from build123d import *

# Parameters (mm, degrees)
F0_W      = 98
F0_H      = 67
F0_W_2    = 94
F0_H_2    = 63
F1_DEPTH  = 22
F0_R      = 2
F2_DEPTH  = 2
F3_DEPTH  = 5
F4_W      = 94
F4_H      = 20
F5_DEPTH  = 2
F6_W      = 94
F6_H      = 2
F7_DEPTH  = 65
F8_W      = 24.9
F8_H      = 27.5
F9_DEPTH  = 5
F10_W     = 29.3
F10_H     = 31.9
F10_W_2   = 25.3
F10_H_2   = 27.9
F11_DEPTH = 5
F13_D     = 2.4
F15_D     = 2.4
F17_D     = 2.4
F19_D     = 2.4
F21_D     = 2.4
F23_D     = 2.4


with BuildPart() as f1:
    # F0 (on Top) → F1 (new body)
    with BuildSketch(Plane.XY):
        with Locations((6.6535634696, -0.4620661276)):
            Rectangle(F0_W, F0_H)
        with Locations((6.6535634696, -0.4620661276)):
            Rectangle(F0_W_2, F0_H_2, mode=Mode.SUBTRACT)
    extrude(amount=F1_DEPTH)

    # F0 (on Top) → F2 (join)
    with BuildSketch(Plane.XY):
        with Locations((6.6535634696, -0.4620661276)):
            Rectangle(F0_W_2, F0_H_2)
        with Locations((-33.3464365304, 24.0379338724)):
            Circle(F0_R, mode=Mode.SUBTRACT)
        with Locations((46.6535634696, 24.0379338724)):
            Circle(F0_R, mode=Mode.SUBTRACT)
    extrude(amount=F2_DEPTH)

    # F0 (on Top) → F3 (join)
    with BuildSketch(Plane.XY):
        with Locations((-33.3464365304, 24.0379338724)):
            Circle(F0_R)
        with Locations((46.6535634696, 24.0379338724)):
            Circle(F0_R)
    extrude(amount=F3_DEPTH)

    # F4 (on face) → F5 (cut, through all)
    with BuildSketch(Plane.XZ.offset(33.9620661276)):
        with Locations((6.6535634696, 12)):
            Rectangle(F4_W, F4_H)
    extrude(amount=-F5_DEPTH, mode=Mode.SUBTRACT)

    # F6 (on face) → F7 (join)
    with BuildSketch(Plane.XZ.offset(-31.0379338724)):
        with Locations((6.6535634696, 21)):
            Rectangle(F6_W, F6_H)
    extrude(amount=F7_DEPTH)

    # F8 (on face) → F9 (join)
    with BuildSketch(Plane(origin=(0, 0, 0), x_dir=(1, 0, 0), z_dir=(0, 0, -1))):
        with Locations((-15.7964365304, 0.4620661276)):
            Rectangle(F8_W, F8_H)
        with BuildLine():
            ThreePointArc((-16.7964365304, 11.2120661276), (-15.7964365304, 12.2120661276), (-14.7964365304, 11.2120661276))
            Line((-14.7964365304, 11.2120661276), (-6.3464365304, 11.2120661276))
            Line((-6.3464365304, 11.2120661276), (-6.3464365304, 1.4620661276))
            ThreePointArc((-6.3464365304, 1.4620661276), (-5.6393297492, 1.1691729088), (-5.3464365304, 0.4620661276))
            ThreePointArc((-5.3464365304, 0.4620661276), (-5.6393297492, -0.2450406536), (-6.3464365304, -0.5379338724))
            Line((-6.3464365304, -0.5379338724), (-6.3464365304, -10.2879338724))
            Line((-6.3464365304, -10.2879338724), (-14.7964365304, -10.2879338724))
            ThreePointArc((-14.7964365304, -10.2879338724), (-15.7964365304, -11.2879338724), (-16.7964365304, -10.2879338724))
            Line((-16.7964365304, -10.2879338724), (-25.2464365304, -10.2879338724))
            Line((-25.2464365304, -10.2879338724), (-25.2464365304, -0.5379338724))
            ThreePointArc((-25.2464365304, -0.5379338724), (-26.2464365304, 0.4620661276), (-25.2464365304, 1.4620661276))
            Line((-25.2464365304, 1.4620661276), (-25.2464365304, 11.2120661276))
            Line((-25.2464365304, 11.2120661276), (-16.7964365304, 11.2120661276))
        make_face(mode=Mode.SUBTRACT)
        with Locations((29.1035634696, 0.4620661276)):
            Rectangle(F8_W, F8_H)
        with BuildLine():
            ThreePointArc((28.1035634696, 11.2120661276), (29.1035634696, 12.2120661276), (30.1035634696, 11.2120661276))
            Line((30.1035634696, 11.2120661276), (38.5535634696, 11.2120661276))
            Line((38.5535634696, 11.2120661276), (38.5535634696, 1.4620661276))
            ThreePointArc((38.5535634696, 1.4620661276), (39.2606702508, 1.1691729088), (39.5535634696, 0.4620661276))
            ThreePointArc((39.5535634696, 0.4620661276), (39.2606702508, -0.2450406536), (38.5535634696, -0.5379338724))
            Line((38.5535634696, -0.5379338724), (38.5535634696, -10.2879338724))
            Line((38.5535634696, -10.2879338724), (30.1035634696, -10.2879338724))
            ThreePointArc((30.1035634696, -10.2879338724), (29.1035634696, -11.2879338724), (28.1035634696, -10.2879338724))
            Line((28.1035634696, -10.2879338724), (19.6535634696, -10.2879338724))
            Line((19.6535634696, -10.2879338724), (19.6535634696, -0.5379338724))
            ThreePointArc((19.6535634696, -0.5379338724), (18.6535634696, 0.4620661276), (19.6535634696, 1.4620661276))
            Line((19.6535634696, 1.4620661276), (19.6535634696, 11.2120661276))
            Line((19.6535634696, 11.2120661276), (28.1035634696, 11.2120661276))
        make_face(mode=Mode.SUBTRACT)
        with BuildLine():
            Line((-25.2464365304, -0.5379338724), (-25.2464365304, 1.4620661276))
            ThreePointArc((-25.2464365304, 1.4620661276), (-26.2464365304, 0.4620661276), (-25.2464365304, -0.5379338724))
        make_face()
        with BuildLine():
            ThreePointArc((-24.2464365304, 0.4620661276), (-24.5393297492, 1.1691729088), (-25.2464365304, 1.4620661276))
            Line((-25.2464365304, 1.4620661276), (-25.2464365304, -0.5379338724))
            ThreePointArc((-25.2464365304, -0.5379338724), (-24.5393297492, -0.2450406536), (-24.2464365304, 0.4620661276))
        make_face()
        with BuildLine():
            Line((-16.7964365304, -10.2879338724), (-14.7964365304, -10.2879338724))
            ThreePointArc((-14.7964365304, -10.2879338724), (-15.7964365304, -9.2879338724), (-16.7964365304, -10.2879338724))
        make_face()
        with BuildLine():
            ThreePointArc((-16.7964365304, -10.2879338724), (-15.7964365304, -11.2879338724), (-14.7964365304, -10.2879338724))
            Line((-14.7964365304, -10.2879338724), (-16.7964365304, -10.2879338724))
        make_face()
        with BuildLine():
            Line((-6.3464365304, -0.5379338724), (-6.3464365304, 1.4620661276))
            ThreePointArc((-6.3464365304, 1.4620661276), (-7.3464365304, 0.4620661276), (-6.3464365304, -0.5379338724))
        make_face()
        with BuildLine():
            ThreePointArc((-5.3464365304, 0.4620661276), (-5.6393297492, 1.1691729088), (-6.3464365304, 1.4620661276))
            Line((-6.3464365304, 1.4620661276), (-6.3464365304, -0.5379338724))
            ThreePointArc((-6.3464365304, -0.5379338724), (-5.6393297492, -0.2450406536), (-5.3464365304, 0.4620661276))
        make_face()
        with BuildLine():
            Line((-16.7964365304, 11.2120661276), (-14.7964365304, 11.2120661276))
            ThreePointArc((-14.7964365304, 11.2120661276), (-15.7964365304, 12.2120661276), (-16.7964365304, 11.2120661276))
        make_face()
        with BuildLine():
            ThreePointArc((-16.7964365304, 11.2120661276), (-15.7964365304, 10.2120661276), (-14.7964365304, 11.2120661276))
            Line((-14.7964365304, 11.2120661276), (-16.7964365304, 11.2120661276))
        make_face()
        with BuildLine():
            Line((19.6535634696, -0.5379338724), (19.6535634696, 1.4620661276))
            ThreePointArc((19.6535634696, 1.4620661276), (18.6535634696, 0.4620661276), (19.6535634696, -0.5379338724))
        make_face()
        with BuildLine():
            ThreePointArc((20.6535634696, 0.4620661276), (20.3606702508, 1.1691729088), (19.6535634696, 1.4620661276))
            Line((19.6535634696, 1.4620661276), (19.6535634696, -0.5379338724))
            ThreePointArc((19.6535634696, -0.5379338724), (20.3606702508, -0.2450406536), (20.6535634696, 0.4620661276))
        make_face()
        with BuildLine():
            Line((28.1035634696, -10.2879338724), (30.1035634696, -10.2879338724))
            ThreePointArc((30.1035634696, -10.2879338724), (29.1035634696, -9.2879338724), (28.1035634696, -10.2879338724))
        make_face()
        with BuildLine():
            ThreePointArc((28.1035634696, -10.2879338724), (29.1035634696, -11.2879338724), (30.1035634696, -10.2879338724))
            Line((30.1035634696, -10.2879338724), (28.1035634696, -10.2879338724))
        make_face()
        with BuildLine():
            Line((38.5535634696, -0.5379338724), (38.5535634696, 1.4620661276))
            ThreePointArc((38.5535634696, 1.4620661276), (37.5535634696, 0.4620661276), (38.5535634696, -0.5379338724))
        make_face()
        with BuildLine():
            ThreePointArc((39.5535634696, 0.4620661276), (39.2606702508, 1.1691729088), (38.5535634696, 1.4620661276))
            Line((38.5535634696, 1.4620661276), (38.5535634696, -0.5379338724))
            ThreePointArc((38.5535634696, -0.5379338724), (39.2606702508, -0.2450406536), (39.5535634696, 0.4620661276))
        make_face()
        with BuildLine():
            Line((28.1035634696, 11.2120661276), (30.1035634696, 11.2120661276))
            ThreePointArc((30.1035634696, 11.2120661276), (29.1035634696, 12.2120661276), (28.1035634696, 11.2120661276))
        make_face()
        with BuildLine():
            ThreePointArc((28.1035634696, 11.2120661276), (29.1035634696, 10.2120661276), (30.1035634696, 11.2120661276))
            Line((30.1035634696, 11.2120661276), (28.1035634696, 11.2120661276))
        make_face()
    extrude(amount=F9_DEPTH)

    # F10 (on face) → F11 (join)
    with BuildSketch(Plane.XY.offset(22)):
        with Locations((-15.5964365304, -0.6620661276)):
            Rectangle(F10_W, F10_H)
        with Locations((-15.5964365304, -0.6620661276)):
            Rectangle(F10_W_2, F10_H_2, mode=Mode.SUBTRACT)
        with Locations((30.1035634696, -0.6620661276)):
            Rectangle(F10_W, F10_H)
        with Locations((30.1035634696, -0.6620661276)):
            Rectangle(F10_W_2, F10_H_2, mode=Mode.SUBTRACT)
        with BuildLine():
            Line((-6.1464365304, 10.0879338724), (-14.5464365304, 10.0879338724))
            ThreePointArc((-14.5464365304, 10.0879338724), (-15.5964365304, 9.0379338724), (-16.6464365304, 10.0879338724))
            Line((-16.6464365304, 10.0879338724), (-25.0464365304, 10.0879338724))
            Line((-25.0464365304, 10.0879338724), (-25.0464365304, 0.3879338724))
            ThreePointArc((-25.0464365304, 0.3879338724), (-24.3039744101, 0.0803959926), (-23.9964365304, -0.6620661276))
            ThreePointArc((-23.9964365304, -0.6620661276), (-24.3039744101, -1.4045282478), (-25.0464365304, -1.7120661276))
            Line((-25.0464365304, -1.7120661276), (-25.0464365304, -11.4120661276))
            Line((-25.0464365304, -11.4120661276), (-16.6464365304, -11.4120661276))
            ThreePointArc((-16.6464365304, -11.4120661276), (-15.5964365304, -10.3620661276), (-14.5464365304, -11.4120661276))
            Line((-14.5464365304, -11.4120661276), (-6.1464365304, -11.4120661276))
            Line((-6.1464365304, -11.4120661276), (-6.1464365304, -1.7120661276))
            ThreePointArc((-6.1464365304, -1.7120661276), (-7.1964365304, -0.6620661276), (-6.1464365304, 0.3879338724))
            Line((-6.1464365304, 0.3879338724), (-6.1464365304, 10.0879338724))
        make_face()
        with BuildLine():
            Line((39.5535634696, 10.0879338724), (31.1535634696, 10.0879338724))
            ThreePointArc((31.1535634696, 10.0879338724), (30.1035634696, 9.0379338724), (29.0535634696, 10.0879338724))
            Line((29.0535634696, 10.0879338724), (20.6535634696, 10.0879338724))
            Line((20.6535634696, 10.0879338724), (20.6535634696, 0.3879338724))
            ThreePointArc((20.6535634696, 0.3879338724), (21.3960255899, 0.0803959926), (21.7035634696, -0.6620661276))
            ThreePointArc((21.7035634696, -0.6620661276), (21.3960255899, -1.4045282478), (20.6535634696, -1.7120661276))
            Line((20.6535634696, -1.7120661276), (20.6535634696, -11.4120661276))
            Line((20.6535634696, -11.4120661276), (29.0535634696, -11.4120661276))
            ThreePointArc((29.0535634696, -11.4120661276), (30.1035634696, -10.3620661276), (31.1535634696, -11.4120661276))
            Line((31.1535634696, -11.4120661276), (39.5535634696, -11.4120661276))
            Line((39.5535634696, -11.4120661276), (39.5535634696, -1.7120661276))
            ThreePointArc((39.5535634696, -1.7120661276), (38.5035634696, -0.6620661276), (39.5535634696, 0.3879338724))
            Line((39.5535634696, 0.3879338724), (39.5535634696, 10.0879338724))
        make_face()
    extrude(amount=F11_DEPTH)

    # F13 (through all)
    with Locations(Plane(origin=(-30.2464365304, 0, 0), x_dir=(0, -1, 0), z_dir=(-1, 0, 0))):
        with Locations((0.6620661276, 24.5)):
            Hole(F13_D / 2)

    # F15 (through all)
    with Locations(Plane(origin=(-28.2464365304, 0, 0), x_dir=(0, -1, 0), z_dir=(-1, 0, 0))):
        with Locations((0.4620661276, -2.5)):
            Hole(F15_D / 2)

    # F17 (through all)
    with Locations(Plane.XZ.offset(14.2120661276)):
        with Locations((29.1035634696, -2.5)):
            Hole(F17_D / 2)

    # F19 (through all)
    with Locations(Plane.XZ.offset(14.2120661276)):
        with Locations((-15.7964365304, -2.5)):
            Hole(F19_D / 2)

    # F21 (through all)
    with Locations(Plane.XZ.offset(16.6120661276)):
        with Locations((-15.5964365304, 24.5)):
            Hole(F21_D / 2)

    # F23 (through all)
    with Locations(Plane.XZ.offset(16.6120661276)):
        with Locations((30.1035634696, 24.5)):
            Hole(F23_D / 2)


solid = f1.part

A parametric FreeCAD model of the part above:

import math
import FreeCAD as App
import Part
import Sketcher
from FreeCAD import Vector
Q = App.Units.Quantity

doc = App.newDocument("Part")
body = doc.addObject("PartDesign::Body", "Body")

# Sketch on XY plane
sketch1 = body.newObject("Sketcher::SketchObject", "Sketch")
sketch1.AttachmentSupport = (doc.getObject("XY_Plane"), [""])
sketch1.MapMode = "FlatFace"
sketch1.addGeometry([
    Part.LineSegment(Vector(-42, 33, 0), Vector(-42, -34, 0)),  # 0
    Part.LineSegment(Vector(-42, -34, 0), Vector(56, -34, 0)),  # 1
    Part.LineSegment(Vector(56, -34, 0), Vector(56, 33, 0)),  # 2
    Part.LineSegment(Vector(56, 33, 0), Vector(-42, 33, 0)),  # 3
    Part.LineSegment(Vector(54, -32, 0), Vector(-40, -32, 0)),  # 4
    Part.LineSegment(Vector(-40, -32, 0), Vector(-40, 31, 0)),  # 5
    Part.LineSegment(Vector(-40, 31, 0), Vector(54, 31, 0)),  # 6
    Part.LineSegment(Vector(54, 31, 0), Vector(54, -32, 0)),  # 7
], False)
sketch1.addConstraint([
    Sketcher.Constraint("Coincident", 0, 2, 1, 1),
    Sketcher.Constraint("Coincident", 1, 2, 2, 1),
    Sketcher.Constraint("Coincident", 2, 2, 3, 1),
    Sketcher.Constraint("Coincident", 3, 2, 0, 1),
    Sketcher.Constraint("Coincident", 4, 2, 5, 1),
    Sketcher.Constraint("Coincident", 5, 2, 6, 1),
    Sketcher.Constraint("Coincident", 6, 2, 7, 1),
    Sketcher.Constraint("Coincident", 7, 2, 4, 1),
    Sketcher.Constraint("Vertical", 0),
    Sketcher.Constraint("Horizontal", 1),
    Sketcher.Constraint("Vertical", 2),
    Sketcher.Constraint("Horizontal", 3),
    Sketcher.Constraint("Horizontal", 4),
    Sketcher.Constraint("Vertical", 5),
    Sketcher.Constraint("Horizontal", 6),
    Sketcher.Constraint("Vertical", 7),
    Sketcher.Constraint("DistanceX", 1, 1, 1, 2, Q("98 mm")),
    Sketcher.Constraint("DistanceX", 4, 2, 4, 1, Q("94 mm")),
    Sketcher.Constraint("DistanceY", 0, 2, 0, 1, Q("67 mm")),
    Sketcher.Constraint("DistanceY", 5, 1, 5, 2, Q("63 mm")),
    Sketcher.Constraint("DistanceX", 0, 2, 4, 2, Q("2 mm")),
    Sketcher.Constraint("DistanceY", 0, 2, 4, 2, Q("2 mm")),
    Sketcher.Constraint("DistanceX", 0, 2, -1, 1, Q("42.346437 mm")),
    Sketcher.Constraint("DistanceY", 0, 2, -1, 1, Q("33.962066 mm")),
])
pad1 = body.newObject("PartDesign::Pad", "Pad")
pad1.Profile = sketch1
pad1.Length = 22

# Sketch on XY plane
sketch2 = body.newObject("Sketcher::SketchObject", "Sketch001")
sketch2.AttachmentSupport = (doc.getObject("XY_Plane"), [""])
sketch2.MapMode = "FlatFace"
sketch2.addGeometry([
    Part.LineSegment(Vector(-40.3, 31, 0), Vector(-40.3, -32, 0)),  # 0
    Part.LineSegment(Vector(-40.3, -32, 0), Vector(53.7, -32, 0)),  # 1
    Part.LineSegment(Vector(53.7, -32, 0), Vector(53.7, 31, 0)),  # 2
    Part.LineSegment(Vector(53.7, 31, 0), Vector(-40.3, 31, 0)),  # 3
    Part.Circle(Vector(-33.3, 24, 0), Vector(0, 0, 1), 2),  # 4
    Part.Circle(Vector(46.7, 24, 0), Vector(0, 0, 1), 2),  # 5
], False)
sketch2.addConstraint([
    Sketcher.Constraint("Coincident", 0, 2, 1, 1),
    Sketcher.Constraint("Coincident", 1, 2, 2, 1),
    Sketcher.Constraint("Coincident", 2, 2, 3, 1),
    Sketcher.Constraint("Coincident", 3, 2, 0, 1),
    Sketcher.Constraint("Vertical", 0),
    Sketcher.Constraint("Horizontal", 1),
    Sketcher.Constraint("Vertical", 2),
    Sketcher.Constraint("Horizontal", 3),
    Sketcher.Constraint("Equal", 4, 5),
    Sketcher.Constraint("Horizontal", 4, 3, 5, 3),
    Sketcher.Constraint("Diameter", 4, Q("4 mm")),
    Sketcher.Constraint("DistanceX", 1, 1, 1, 2, Q("94 mm")),
    Sketcher.Constraint("DistanceY", 0, 2, 0, 1, Q("63 mm")),
    Sketcher.Constraint("DistanceX", 4, 3, 5, 3, Q("80 mm")),
    Sketcher.Constraint("DistanceX", 0, 2, 4, 3, Q("7 mm")),
    Sketcher.Constraint("DistanceY", 0, 2, 4, 3, Q("56 mm")),
    Sketcher.Constraint("DistanceX", 4, 3, -1, 1, Q("33.346437 mm")),
    Sketcher.Constraint("DistanceY", -1, 1, 4, 3, Q("24.037934 mm")),
])
pad2 = body.newObject("PartDesign::Pad", "Pad001")
pad2.Profile = sketch2
pad2.Length = 2

# Sketch on XY plane
sketch3 = body.newObject("Sketcher::SketchObject", "Sketch002")
sketch3.AttachmentSupport = (doc.getObject("XY_Plane"), [""])
sketch3.MapMode = "FlatFace"
sketch3.addGeometry([
    Part.Circle(Vector(-33.3, 24, 0), Vector(0, 0, 1), 2),
    Part.Circle(Vector(46.7, 24, 0), Vector(0, 0, 1), 2),
], False)
sketch3.addConstraint([
    Sketcher.Constraint("Equal", 0, 1),
    Sketcher.Constraint("Horizontal", 0, 3, 1, 3),
    Sketcher.Constraint("Diameter", 0, Q("4 mm")),
    Sketcher.Constraint("DistanceX", 0, 3, 1, 3, Q("80 mm")),
    Sketcher.Constraint("DistanceX", 0, 3, -1, 1, Q("33.346437 mm")),
    Sketcher.Constraint("DistanceY", -1, 1, 0, 3, Q("24.037934 mm")),
])
pad3 = body.newObject("PartDesign::Pad", "Pad002")
pad3.Profile = sketch3
pad3.Length = 5

# Sketch on XZ plane
sketch4 = body.newObject("Sketcher::SketchObject", "Sketch003")
sketch4.AttachmentSupport = (doc.getObject("XZ_Plane"), [""])
sketch4.MapMode = "FlatFace"
sketch4.AttachmentOffset = App.Placement(Vector(0, 0, 33.962066), App.Rotation())
sketch4.addGeometry([
    Part.LineSegment(Vector(-40, 22, 0), Vector(-40, 2, 0)),
    Part.LineSegment(Vector(-40, 2, 0), Vector(54, 2, 0)),
    Part.LineSegment(Vector(54, 2, 0), Vector(54, 22, 0)),
    Part.LineSegment(Vector(54, 22, 0), Vector(-40, 22, 0)),
], False)
sketch4.addConstraint([
    Sketcher.Constraint("Coincident", 0, 2, 1, 1),
    Sketcher.Constraint("Coincident", 1, 2, 2, 1),
    Sketcher.Constraint("Coincident", 2, 2, 3, 1),
    Sketcher.Constraint("Coincident", 3, 2, 0, 1),
    Sketcher.Constraint("Vertical", 0),
    Sketcher.Constraint("Horizontal", 1),
    Sketcher.Constraint("Vertical", 2),
    Sketcher.Constraint("Horizontal", 3),
    Sketcher.Constraint("DistanceX", 1, 1, 1, 2, Q("94 mm")),
    Sketcher.Constraint("DistanceY", 0, 2, 0, 1, Q("20 mm")),
    Sketcher.Constraint("DistanceY", -1, 1, 0, 2, Q("2 mm")),
    Sketcher.Constraint("DistanceX", 0, 2, -1, 1, Q("40.346437 mm")),
])
pocket1 = body.newObject("PartDesign::Pocket", "Pocket")
pocket1.Profile = sketch4
pocket1.Length = 2

# Sketch on XZ plane
sketch5 = body.newObject("Sketcher::SketchObject", "Sketch004")
sketch5.AttachmentSupport = (doc.getObject("XZ_Plane"), [""])
sketch5.MapMode = "FlatFace"
sketch5.AttachmentOffset = App.Placement(Vector(0, 0, -31.037934), App.Rotation())
sketch5.addGeometry([
    Part.LineSegment(Vector(-40.3, 22, 0), Vector(-40.3, 20, 0)),
    Part.LineSegment(Vector(-40.3, 20, 0), Vector(53.7, 20, 0)),
    Part.LineSegment(Vector(53.7, 20, 0), Vector(53.7, 22, 0)),
    Part.LineSegment(Vector(53.7, 22, 0), Vector(-40.3, 22, 0)),
], False)
sketch5.addConstraint([
    Sketcher.Constraint("Coincident", 0, 2, 1, 1),
    Sketcher.Constraint("Coincident", 1, 2, 2, 1),
    Sketcher.Constraint("Coincident", 2, 2, 3, 1),
    Sketcher.Constraint("Coincident", 3, 2, 0, 1),
    Sketcher.Constraint("Vertical", 0),
    Sketcher.Constraint("Horizontal", 1),
    Sketcher.Constraint("Vertical", 2),
    Sketcher.Constraint("Horizontal", 3),
    Sketcher.Constraint("DistanceX", 1, 1, 1, 2, Q("94 mm")),
    Sketcher.Constraint("DistanceY", 0, 2, 0, 1, Q("2 mm")),
    Sketcher.Constraint("DistanceY", -1, 1, 0, 2, Q("20 mm")),
    Sketcher.Constraint("DistanceX", 0, 2, -1, 1, Q("40.346437 mm")),
])
pad4 = body.newObject("PartDesign::Pad", "Pad003")
pad4.Profile = sketch5
pad4.Length = 65

# Sketch on XY plane
sketch6 = body.newObject("Sketcher::SketchObject", "Sketch005")
sketch6.AttachmentSupport = (doc.getObject("XY_Plane"), [""])
sketch6.MapMode = "FlatFace"
sketch6.addGeometry([
    Part.LineSegment(Vector(-28.2, -14.2, 0), Vector(-28.2, 13.3, 0)),  # 0
    Part.LineSegment(Vector(-28.2, 13.3, 0), Vector(-3.3, 13.3, 0)),  # 1
    Part.LineSegment(Vector(-3.3, 13.3, 0), Vector(-3.3, -14.2, 0)),  # 2
    Part.LineSegment(Vector(-3.3, -14.2, 0), Vector(-28.2, -14.2, 0)),  # 3
    Part.LineSegment(Vector(-25.2, -11.2, 0), Vector(-16.8, -11.2, 0)),  # 4
    Part.ArcOfCircle(Part.Circle(Vector(-15.8, -11.2, 0), Vector(0, 0, 1), 1), math.radians(0), math.radians(180)),  # 5
    Part.LineSegment(Vector(-14.8, -11.2, 0), Vector(-6.3, -11.2, 0)),  # 6
    Part.LineSegment(Vector(-6.3, -11.2, 0), Vector(-6.3, -1.5, 0)),  # 7
    Part.ArcOfCircle(Part.Circle(Vector(-6.3, -0.5, 0), Vector(0, 0, 1), 1), math.radians(90), math.radians(270)),  # 8
    Part.LineSegment(Vector(-6.3, 0.5, 0), Vector(-6.3, 10.3, 0)),  # 9
    Part.LineSegment(Vector(-6.3, 10.3, 0), Vector(-14.8, 10.3, 0)),  # 10
    Part.ArcOfCircle(Part.Circle(Vector(-15.8, 10.3, 0), Vector(0, 0, 1), 1), math.radians(180), math.radians(360)),  # 11
    Part.LineSegment(Vector(-16.8, 10.3, 0), Vector(-25.2, 10.3, 0)),  # 12
    Part.LineSegment(Vector(-25.2, 10.3, 0), Vector(-25.2, 0.5, 0)),  # 13
    Part.ArcOfCircle(Part.Circle(Vector(-25.2, -0.5, 0), Vector(0, 0, 1), 1), math.radians(0), math.radians(90)),  # 14
    Part.ArcOfCircle(Part.Circle(Vector(-25.2, -0.5, 0), Vector(0, 0, 1), 1), math.radians(-90), math.radians(0)),  # 15
    Part.LineSegment(Vector(-25.2, -1.5, 0), Vector(-25.2, -11.2, 0)),  # 16
    Part.LineSegment(Vector(16.7, -14.2, 0), Vector(16.7, 13.3, 0)),  # 17
    Part.LineSegment(Vector(16.7, 13.3, 0), Vector(41.6, 13.3, 0)),  # 18
    Part.LineSegment(Vector(41.6, 13.3, 0), Vector(41.6, -14.2, 0)),  # 19
    Part.LineSegment(Vector(41.6, -14.2, 0), Vector(16.7, -14.2, 0)),  # 20
    Part.LineSegment(Vector(19.7, -11.2, 0), Vector(28.1, -11.2, 0)),  # 21
    Part.ArcOfCircle(Part.Circle(Vector(29.1, -11.2, 0), Vector(0, 0, 1), 1), math.radians(0), math.radians(180)),  # 22
    Part.LineSegment(Vector(30.1, -11.2, 0), Vector(38.6, -11.2, 0)),  # 23
    Part.LineSegment(Vector(38.6, -11.2, 0), Vector(38.6, -1.5, 0)),  # 24
    Part.ArcOfCircle(Part.Circle(Vector(38.6, -0.5, 0), Vector(0, 0, 1), 1), math.radians(90), math.radians(270)),  # 25
    Part.LineSegment(Vector(38.6, 0.5, 0), Vector(38.6, 10.3, 0)),  # 26
    Part.LineSegment(Vector(38.6, 10.3, 0), Vector(30.1, 10.3, 0)),  # 27
    Part.ArcOfCircle(Part.Circle(Vector(29.1, 10.3, 0), Vector(0, 0, 1), 1), math.radians(180), math.radians(360)),  # 28
    Part.LineSegment(Vector(28.1, 10.3, 0), Vector(19.7, 10.3, 0)),  # 29
    Part.LineSegment(Vector(19.7, 10.3, 0), Vector(19.7, 0.5, 0)),  # 30
    Part.ArcOfCircle(Part.Circle(Vector(19.7, -0.5, 0), Vector(0, 0, 1), 1), math.radians(0), math.radians(90)),  # 31
    Part.ArcOfCircle(Part.Circle(Vector(19.7, -0.5, 0), Vector(0, 0, 1), 1), math.radians(-90), math.radians(0)),  # 32
    Part.LineSegment(Vector(19.7, -1.5, 0), Vector(19.7, -11.2, 0)),  # 33
], False)
sketch6.addConstraint([
    Sketcher.Constraint("Coincident", 0, 2, 1, 1),
    Sketcher.Constraint("Coincident", 1, 2, 2, 1),
    Sketcher.Constraint("Coincident", 2, 2, 3, 1),
    Sketcher.Constraint("Coincident", 3, 2, 0, 1),
    Sketcher.Constraint("Coincident", 4, 2, 5, 2),
    Sketcher.Constraint("Coincident", 5, 1, 6, 1),
    Sketcher.Constraint("Coincident", 6, 2, 7, 1),
    Sketcher.Constraint("Coincident", 7, 2, 8, 2),
    Sketcher.Constraint("Coincident", 8, 1, 9, 1),
    Sketcher.Constraint("Coincident", 9, 2, 10, 1),
    Sketcher.Constraint("Coincident", 10, 2, 11, 2),
    Sketcher.Constraint("Coincident", 11, 1, 12, 1),
    Sketcher.Constraint("Coincident", 12, 2, 13, 1),
    Sketcher.Constraint("Coincident", 13, 2, 14, 2),
    Sketcher.Constraint("Tangent", 14, 1, 15, 2),
    Sketcher.Constraint("Coincident", 15, 1, 16, 1),
    Sketcher.Constraint("Coincident", 16, 2, 4, 1),
    Sketcher.Constraint("Coincident", 17, 2, 18, 1),
    Sketcher.Constraint("Coincident", 18, 2, 19, 1),
    Sketcher.Constraint("Coincident", 19, 2, 20, 1),
    Sketcher.Constraint("Coincident", 20, 2, 17, 1),
    Sketcher.Constraint("Coincident", 21, 2, 22, 2),
    Sketcher.Constraint("Coincident", 22, 1, 23, 1),
    Sketcher.Constraint("Coincident", 23, 2, 24, 1),
    Sketcher.Constraint("Coincident", 24, 2, 25, 2),
    Sketcher.Constraint("Coincident", 25, 1, 26, 1),
    Sketcher.Constraint("Coincident", 26, 2, 27, 1),
    Sketcher.Constraint("Coincident", 27, 2, 28, 2),
    Sketcher.Constraint("Coincident", 28, 1, 29, 1),
    Sketcher.Constraint("Coincident", 29, 2, 30, 1),
    Sketcher.Constraint("Coincident", 30, 2, 31, 2),
    Sketcher.Constraint("Tangent", 31, 1, 32, 2),
    Sketcher.Constraint("Coincident", 32, 1, 33, 1),
    Sketcher.Constraint("Coincident", 33, 2, 21, 1),
    Sketcher.Constraint("Vertical", 0),
    Sketcher.Constraint("Horizontal", 1),
    Sketcher.Constraint("Vertical", 2),
    Sketcher.Constraint("Horizontal", 3),
    Sketcher.Constraint("Horizontal", 4),
    Sketcher.Constraint("Horizontal", 6),
    Sketcher.Constraint("Vertical", 7),
    Sketcher.Constraint("Vertical", 9),
    Sketcher.Constraint("Horizontal", 10),
    Sketcher.Constraint("Horizontal", 12),
    Sketcher.Constraint("Vertical", 13),
    Sketcher.Constraint("Vertical", 16),
    Sketcher.Constraint("Vertical", 17),
    Sketcher.Constraint("Horizontal", 18),
    Sketcher.Constraint("Vertical", 19),
    Sketcher.Constraint("Horizontal", 20),
    Sketcher.Constraint("Horizontal", 21),
    Sketcher.Constraint("Horizontal", 23),
    Sketcher.Constraint("Vertical", 24),
    Sketcher.Constraint("Vertical", 26),
    Sketcher.Constraint("Horizontal", 27),
    Sketcher.Constraint("Horizontal", 29),
    Sketcher.Constraint("Vertical", 30),
    Sketcher.Constraint("Vertical", 33),
    Sketcher.Constraint("Equal", 5, 8),
    Sketcher.Constraint("Equal", 8, 11),
    Sketcher.Constraint("Equal", 11, 14),
    Sketcher.Constraint("Equal", 14, 15),
    Sketcher.Constraint("Equal", 15, 22),
    Sketcher.Constraint("Equal", 22, 25),
    Sketcher.Constraint("Equal", 25, 28),
    Sketcher.Constraint("Equal", 28, 31),
    Sketcher.Constraint("Equal", 31, 32),
    Sketcher.Constraint("Horizontal", 8, 3, 14, 3),
    Sketcher.Constraint("Horizontal", 5, 3, 22, 3),
    Sketcher.Constraint("Horizontal", 15, 3, 25, 3),
    Sketcher.Constraint("Horizontal", 11, 3, 28, 3),
    Sketcher.Constraint("Horizontal", 25, 3, 31, 3),
    Sketcher.Constraint("Horizontal", 22, 3, 4, 2),
    Sketcher.Constraint("Horizontal", 4, 2, 5, 1),
    Sketcher.Constraint("Horizontal", 28, 3, 9, 2),
    Sketcher.Constraint("Horizontal", 10, 2, 11, 1),
    Sketcher.Constraint("Horizontal", 32, 3, 14, 1),
    Sketcher.Constraint("Horizontal", 1, 2, 17, 2),
    Sketcher.Constraint("Horizontal", 3, 2, 19, 2),
    Sketcher.Constraint("Horizontal", 16, 2, 21, 2),
    Sketcher.Constraint("Horizontal", 21, 2, 22, 1),
    Sketcher.Constraint("Horizontal", 12, 2, 26, 2),
    Sketcher.Constraint("Horizontal", 27, 2, 28, 1),
    Sketcher.Constraint("Horizontal", 14, 1, 31, 1),
    Sketcher.Constraint("Vertical", 5, 3, 11, 3),
    Sketcher.Constraint("Vertical", 22, 3, 28, 3),
    Sketcher.Constraint("Vertical", 8, 3, 6, 2),
    Sketcher.Constraint("Vertical", 7, 2, 8, 1),
    Sketcher.Constraint("Vertical", 15, 3, 12, 2),
    Sketcher.Constraint("Vertical", 13, 2, 15, 1),
    Sketcher.Constraint("Vertical", 25, 3, 23, 2),
    Sketcher.Constraint("Vertical", 24, 2, 25, 1),
    Sketcher.Constraint("Vertical", 32, 3, 29, 2),
    Sketcher.Constraint("Vertical", 30, 2, 32, 1),
    Sketcher.Constraint("Equal", 4, 6),
    Sketcher.Constraint("Equal", 3, 18),
    Sketcher.Constraint("Equal", 12, 21),
    Sketcher.Constraint("Equal", 21, 23),
    Sketcher.Constraint("Equal", 7, 9),
    Sketcher.Constraint("Radius", 5, Q("1 mm")),
    Sketcher.Constraint("DistanceX", 1, 1, 1, 2, Q("24.9 mm")),
    Sketcher.Constraint("DistanceY", 0, 1, 0, 2, Q("27.5 mm")),
    Sketcher.Constraint("DistanceX", 8, 3, 31, 3, Q("26 mm")),
    Sketcher.Constraint("DistanceY", 11, 3, 0, 2, Q("3 mm")),
    Sketcher.Constraint("DistanceX", 0, 2, 14, 3, Q("3 mm")),
    Sketcher.Constraint("DistanceX", 8, 3, 1, 2, Q("3 mm")),
    Sketcher.Constraint("DistanceY", 2, 2, 5, 3, Q("3 mm")),
    Sketcher.Constraint("DistanceX", 17, 2, 31, 3, Q("3 mm")),
    Sketcher.Constraint("DistanceX", 5, 3, -1, 1, Q("15.796437 mm")),
    Sketcher.Constraint("DistanceY", 5, 3, -1, 1, Q("11.212066 mm")),
])
pad5 = body.newObject("PartDesign::Pad", "Pad004")
pad5.Profile = sketch6
pad5.Length = 5
pad5.Reversed = True

# Sketch on XY plane
sketch7 = body.newObject("Sketcher::SketchObject", "Sketch006")
sketch7.AttachmentSupport = (doc.getObject("XY_Plane"), [""])
sketch7.MapMode = "FlatFace"
sketch7.AttachmentOffset = App.Placement(Vector(0, 0, 22), App.Rotation())
sketch7.addGeometry([
    Part.LineSegment(Vector(-30.2, 15.3, 0), Vector(-30.2, -16.6, 0)),  # 0
    Part.LineSegment(Vector(-30.2, -16.6, 0), Vector(-0.9, -16.6, 0)),  # 1
    Part.LineSegment(Vector(-0.9, -16.6, 0), Vector(-0.9, 15.3, 0)),  # 2
    Part.LineSegment(Vector(-0.9, 15.3, 0), Vector(-30.2, 15.3, 0)),  # 3
    Part.LineSegment(Vector(-2.9, -14.6, 0), Vector(-28.2, -14.6, 0)),  # 4
    Part.LineSegment(Vector(-28.2, -14.6, 0), Vector(-28.2, 13.3, 0)),  # 5
    Part.LineSegment(Vector(-28.2, 13.3, 0), Vector(-2.9, 13.3, 0)),  # 6
    Part.LineSegment(Vector(-2.9, 13.3, 0), Vector(-2.9, -14.6, 0)),  # 7
    Part.LineSegment(Vector(15.5, 15.3, 0), Vector(15.5, -16.6, 0)),  # 8
    Part.LineSegment(Vector(15.5, -16.6, 0), Vector(44.8, -16.6, 0)),  # 9
    Part.LineSegment(Vector(44.8, -16.6, 0), Vector(44.8, 15.3, 0)),  # 10
    Part.LineSegment(Vector(44.8, 15.3, 0), Vector(15.5, 15.3, 0)),  # 11
    Part.LineSegment(Vector(42.8, -14.6, 0), Vector(17.5, -14.6, 0)),  # 12
    Part.LineSegment(Vector(17.5, -14.6, 0), Vector(17.5, 13.3, 0)),  # 13
    Part.LineSegment(Vector(17.5, 13.3, 0), Vector(42.8, 13.3, 0)),  # 14
    Part.LineSegment(Vector(42.8, 13.3, 0), Vector(42.8, -14.6, 0)),  # 15
    Part.LineSegment(Vector(-6.1, 10.1, 0), Vector(-14.5, 10.1, 0)),  # 16
    Part.ArcOfCircle(Part.Circle(Vector(-15.6, 10.1, 0), Vector(0, 0, 1), 1.1), math.radians(180), math.radians(360)),  # 17
    Part.LineSegment(Vector(-16.6, 10.1, 0), Vector(-25, 10.1, 0)),  # 18
    Part.LineSegment(Vector(-25, 10.1, 0), Vector(-25, 0.4, 0)),  # 19
    Part.ArcOfCircle(Part.Circle(Vector(-25, -0.7, 0), Vector(0, 0, 1), 1.1), math.radians(0), math.radians(90)),  # 20
    Part.ArcOfCircle(Part.Circle(Vector(-25, -0.7, 0), Vector(0, 0, 1), 1.1), math.radians(-90), math.radians(0)),  # 21
    Part.LineSegment(Vector(-25, -1.7, 0), Vector(-25, -11.4, 0)),  # 22
    Part.LineSegment(Vector(-25, -11.4, 0), Vector(-16.6, -11.4, 0)),  # 23
    Part.ArcOfCircle(Part.Circle(Vector(-15.6, -11.4, 0), Vector(0, 0, 1), 1.1), math.radians(0), math.radians(180)),  # 24
    Part.LineSegment(Vector(-14.5, -11.4, 0), Vector(-6.1, -11.4, 0)),  # 25
    Part.LineSegment(Vector(-6.1, -11.4, 0), Vector(-6.1, -1.7, 0)),  # 26
    Part.ArcOfCircle(Part.Circle(Vector(-6.1, -0.7, 0), Vector(0, 0, 1), 1.1), math.radians(90), math.radians(270)),  # 27
    Part.LineSegment(Vector(-6.1, 0.4, 0), Vector(-6.1, 10.1, 0)),  # 28
    Part.LineSegment(Vector(39.6, 10.1, 0), Vector(31.2, 10.1, 0)),  # 29
    Part.ArcOfCircle(Part.Circle(Vector(30.1, 10.1, 0), Vector(0, 0, 1), 1.1), math.radians(180), math.radians(360)),  # 30
    Part.LineSegment(Vector(29.1, 10.1, 0), Vector(20.7, 10.1, 0)),  # 31
    Part.LineSegment(Vector(20.7, 10.1, 0), Vector(20.7, 0.4, 0)),  # 32
    Part.ArcOfCircle(Part.Circle(Vector(20.7, -0.7, 0), Vector(0, 0, 1), 1.1), math.radians(0), math.radians(90)),  # 33
    Part.ArcOfCircle(Part.Circle(Vector(20.7, -0.7, 0), Vector(0, 0, 1), 1.1), math.radians(-90), math.radians(0)),  # 34
    Part.LineSegment(Vector(20.7, -1.7, 0), Vector(20.7, -11.4, 0)),  # 35
    Part.LineSegment(Vector(20.7, -11.4, 0), Vector(29.1, -11.4, 0)),  # 36
    Part.ArcOfCircle(Part.Circle(Vector(30.1, -11.4, 0), Vector(0, 0, 1), 1.1), math.radians(0), math.radians(180)),  # 37
    Part.LineSegment(Vector(31.2, -11.4, 0), Vector(39.6, -11.4, 0)),  # 38
    Part.LineSegment(Vector(39.6, -11.4, 0), Vector(39.6, -1.7, 0)),  # 39
    Part.ArcOfCircle(Part.Circle(Vector(39.6, -0.7, 0), Vector(0, 0, 1), 1.1), math.radians(90), math.radians(270)),  # 40
    Part.LineSegment(Vector(39.6, 0.4, 0), Vector(39.6, 10.1, 0)),  # 41
], False)
sketch7.addConstraint([
    Sketcher.Constraint("Coincident", 0, 2, 1, 1),
    Sketcher.Constraint("Coincident", 1, 2, 2, 1),
    Sketcher.Constraint("Coincident", 2, 2, 3, 1),
    Sketcher.Constraint("Coincident", 3, 2, 0, 1),
    Sketcher.Constraint("Coincident", 4, 2, 5, 1),
    Sketcher.Constraint("Coincident", 5, 2, 6, 1),
    Sketcher.Constraint("Coincident", 6, 2, 7, 1),
    Sketcher.Constraint("Coincident", 7, 2, 4, 1),
    Sketcher.Constraint("Coincident", 8, 2, 9, 1),
    Sketcher.Constraint("Coincident", 9, 2, 10, 1),
    Sketcher.Constraint("Coincident", 10, 2, 11, 1),
    Sketcher.Constraint("Coincident", 11, 2, 8, 1),
    Sketcher.Constraint("Coincident", 12, 2, 13, 1),
    Sketcher.Constraint("Coincident", 13, 2, 14, 1),
    Sketcher.Constraint("Coincident", 14, 2, 15, 1),
    Sketcher.Constraint("Coincident", 15, 2, 12, 1),
    Sketcher.Constraint("Coincident", 16, 2, 17, 2),
    Sketcher.Constraint("Coincident", 17, 1, 18, 1),
    Sketcher.Constraint("Coincident", 18, 2, 19, 1),
    Sketcher.Constraint("Coincident", 19, 2, 20, 2),
    Sketcher.Constraint("Tangent", 20, 1, 21, 2),
    Sketcher.Constraint("Coincident", 21, 1, 22, 1),
    Sketcher.Constraint("Coincident", 22, 2, 23, 1),
    Sketcher.Constraint("Coincident", 23, 2, 24, 2),
    Sketcher.Constraint("Coincident", 24, 1, 25, 1),
    Sketcher.Constraint("Coincident", 25, 2, 26, 1),
    Sketcher.Constraint("Coincident", 26, 2, 27, 2),
    Sketcher.Constraint("Coincident", 27, 1, 28, 1),
    Sketcher.Constraint("Coincident", 28, 2, 16, 1),
    Sketcher.Constraint("Coincident", 29, 2, 30, 2),
    Sketcher.Constraint("Coincident", 30, 1, 31, 1),
    Sketcher.Constraint("Coincident", 31, 2, 32, 1),
    Sketcher.Constraint("Coincident", 32, 2, 33, 2),
    Sketcher.Constraint("Tangent", 33, 1, 34, 2),
    Sketcher.Constraint("Coincident", 34, 1, 35, 1),
    Sketcher.Constraint("Coincident", 35, 2, 36, 1),
    Sketcher.Constraint("Coincident", 36, 2, 37, 2),
    Sketcher.Constraint("Coincident", 37, 1, 38, 1),
    Sketcher.Constraint("Coincident", 38, 2, 39, 1),
    Sketcher.Constraint("Coincident", 39, 2, 40, 2),
    Sketcher.Constraint("Coincident", 40, 1, 41, 1),
    Sketcher.Constraint("Coincident", 41, 2, 29, 1),
    Sketcher.Constraint("Vertical", 0),
    Sketcher.Constraint("Horizontal", 1),
    Sketcher.Constraint("Vertical", 2),
    Sketcher.Constraint("Horizontal", 3),
    Sketcher.Constraint("Horizontal", 4),
    Sketcher.Constraint("Vertical", 5),
    Sketcher.Constraint("Horizontal", 6),
    Sketcher.Constraint("Vertical", 7),
    Sketcher.Constraint("Vertical", 8),
    Sketcher.Constraint("Horizontal", 9),
    Sketcher.Constraint("Vertical", 10),
    Sketcher.Constraint("Horizontal", 11),
    Sketcher.Constraint("Horizontal", 12),
    Sketcher.Constraint("Vertical", 13),
    Sketcher.Constraint("Horizontal", 14),
    Sketcher.Constraint("Vertical", 15),
    Sketcher.Constraint("Horizontal", 16),
    Sketcher.Constraint("Horizontal", 18),
    Sketcher.Constraint("Vertical", 19),
    Sketcher.Constraint("Vertical", 22),
    Sketcher.Constraint("Horizontal", 23),
    Sketcher.Constraint("Horizontal", 25),
    Sketcher.Constraint("Vertical", 26),
    Sketcher.Constraint("Vertical", 28),
    Sketcher.Constraint("Horizontal", 29),
    Sketcher.Constraint("Horizontal", 31),
    Sketcher.Constraint("Vertical", 32),
    Sketcher.Constraint("Vertical", 35),
    Sketcher.Constraint("Horizontal", 36),
    Sketcher.Constraint("Horizontal", 38),
    Sketcher.Constraint("Vertical", 39),
    Sketcher.Constraint("Vertical", 41),
    Sketcher.Constraint("Equal", 17, 20),
    Sketcher.Constraint("Equal", 20, 21),
    Sketcher.Constraint("Equal", 21, 24),
    Sketcher.Constraint("Equal", 24, 27),
    Sketcher.Constraint("Equal", 27, 30),
    Sketcher.Constraint("Equal", 30, 33),
    Sketcher.Constraint("Equal", 33, 34),
    Sketcher.Constraint("Equal", 34, 37),
    Sketcher.Constraint("Equal", 37, 40),
    Sketcher.Constraint("Horizontal", 21, 3, 27, 3),
    Sketcher.Constraint("Horizontal", 17, 3, 30, 3),
    Sketcher.Constraint("Horizontal", 27, 3, 33, 3),
    Sketcher.Constraint("Horizontal", 24, 3, 37, 3),
    Sketcher.Constraint("Horizontal", 34, 3, 40, 3),
    Sketcher.Constraint("Horizontal", 1, 2, 8, 2),
    Sketcher.Constraint("Horizontal", 3, 2, 10, 2),
    Sketcher.Constraint("Horizontal", 7, 2, 12, 2),
    Sketcher.Constraint("Horizontal", 6, 2, 13, 2),
    Sketcher.Constraint("Horizontal", 30, 3, 16, 2),
    Sketcher.Constraint("Horizontal", 16, 2, 17, 1),
    Sketcher.Constraint("Horizontal", 40, 3, 20, 1),
    Sketcher.Constraint("Horizontal", 37, 3, 22, 2),
    Sketcher.Constraint("Horizontal", 23, 2, 24, 1),
    Sketcher.Constraint("Horizontal", 28, 2, 29, 2),
    Sketcher.Constraint("Horizontal", 29, 2, 30, 1),
    Sketcher.Constraint("Horizontal", 20, 1, 33, 1),
    Sketcher.Constraint("Horizontal", 25, 2, 35, 2),
    Sketcher.Constraint("Horizontal", 36, 2, 37, 1),
    Sketcher.Constraint("Vertical", 17, 3, 24, 3),
    Sketcher.Constraint("Vertical", 30, 3, 37, 3),
    Sketcher.Constraint("Vertical", 21, 3, 18, 2),
    Sketcher.Constraint("Vertical", 19, 2, 21, 1),
    Sketcher.Constraint("Vertical", 27, 3, 25, 2),
    Sketcher.Constraint("Vertical", 26, 2, 27, 1),
    Sketcher.Constraint("Vertical", 34, 3, 31, 2),
    Sketcher.Constraint("Vertical", 32, 2, 34, 1),
    Sketcher.Constraint("Vertical", 40, 3, 38, 2),
    Sketcher.Constraint("Vertical", 39, 2, 40, 1),
    Sketcher.Constraint("Equal", 3, 9),
    Sketcher.Constraint("Equal", 6, 12),
    Sketcher.Constraint("Equal", 16, 18),
    Sketcher.Constraint("Equal", 25, 29),
    Sketcher.Constraint("Equal", 29, 31),
    Sketcher.Constraint("Equal", 19, 22),
    Sketcher.Constraint("Radius", 17, Q("1.05 mm")),
    Sketcher.Constraint("DistanceX", 1, 1, 1, 2, Q("29.3 mm")),
    Sketcher.Constraint("DistanceX", 4, 2, 4, 1, Q("25.3 mm")),
    Sketcher.Constraint("DistanceX", 16, 2, 16, 1, Q("8.4 mm")),
    Sketcher.Constraint("DistanceY", 0, 2, 0, 1, Q("31.9 mm")),
    Sketcher.Constraint("DistanceY", 5, 1, 5, 2, Q("27.9 mm")),
    Sketcher.Constraint("DistanceY", 19, 2, 19, 1, Q("9.7 mm")),
    Sketcher.Constraint("DistanceX", 0, 2, 4, 2, Q("2 mm")),
    Sketcher.Constraint("DistanceY", 0, 2, 4, 2, Q("2 mm")),
    Sketcher.Constraint("DistanceX", 8, 2, 12, 2, Q("2 mm")),
    Sketcher.Constraint("DistanceX", 17, 3, 30, 3, Q("45.7 mm")),
    Sketcher.Constraint("DistanceY", 0, 2, 24, 3, Q("5.2 mm")),
    Sketcher.Constraint("DistanceX", 0, 2, 20, 3, Q("5.2 mm")),
    Sketcher.Constraint("DistanceX", 1, 2, 8, 2, Q("16.4 mm")),
    Sketcher.Constraint("DistanceX", 17, 3, -1, 1, Q("15.596437 mm")),
    Sketcher.Constraint("DistanceY", -1, 1, 17, 3, Q("10.087934 mm")),
])
pad6 = body.newObject("PartDesign::Pad", "Pad005")
pad6.Profile = sketch7
pad6.Length = 5

# Sketch on YZ plane
sketch8 = body.newObject("Sketcher::SketchObject", "Sketch007")
sketch8.AttachmentSupport = (doc.getObject("YZ_Plane"), [""])
sketch8.MapMode = "FlatFace"
sketch8.AttachmentOffset = App.Placement(Vector(0, 0, -30.246437), App.Rotation())
sketch8.addGeometry(Part.Circle(Vector(-0.7, 24.5, 0), Vector(0, 0, 1), 1.2), False)
sketch8.addConstraint([
    Sketcher.Constraint("Diameter", 0, Q("2.4 mm")),
    Sketcher.Constraint("DistanceY", -1, 1, 0, 3, Q("24.5 mm")),
    Sketcher.Constraint("DistanceX", 0, 3, -1, 1, Q("0.662066 mm")),
])
doc.recompute()
hole = body.newObject("PartDesign::Hole", "Hole")
hole.Profile = sketch8
hole.ThreadType = "None"
hole.Diameter = 2.4
hole.DepthType = "ThroughAll"
hole.Reversed = True

# Sketch on YZ plane
sketch9 = body.newObject("Sketcher::SketchObject", "Sketch008")
sketch9.AttachmentSupport = (doc.getObject("YZ_Plane"), [""])
sketch9.MapMode = "FlatFace"
sketch9.AttachmentOffset = App.Placement(Vector(0, 0, -28.246437), App.Rotation())
sketch9.addGeometry(Part.Circle(Vector(-0.5, -2.5, 0), Vector(0, 0, 1), 1.2), False)
sketch9.addConstraint([
    Sketcher.Constraint("Diameter", 0, Q("2.4 mm")),
    Sketcher.Constraint("DistanceY", 0, 3, -1, 1, Q("2.5 mm")),
    Sketcher.Constraint("DistanceX", 0, 3, -1, 1, Q("0.462066 mm")),
])
doc.recompute()
hole2 = body.newObject("PartDesign::Hole", "Hole001")
hole2.Profile = sketch9
hole2.ThreadType = "None"
hole2.Diameter = 2.4
hole2.DepthType = "ThroughAll"
hole2.Reversed = True

# Sketch on XZ plane
sketch10 = body.newObject("Sketcher::SketchObject", "Sketch009")
sketch10.AttachmentSupport = (doc.getObject("XZ_Plane"), [""])
sketch10.MapMode = "FlatFace"
sketch10.AttachmentOffset = App.Placement(Vector(0, 0, 14.212066), App.Rotation())
sketch10.addGeometry(Part.Circle(Vector(29.1, -2.5, 0), Vector(0, 0, 1), 1.2), False)
sketch10.addConstraint([
    Sketcher.Constraint("Diameter", 0, Q("2.4 mm")),
    Sketcher.Constraint("DistanceY", 0, 3, -1, 1, Q("2.5 mm")),
    Sketcher.Constraint("DistanceX", -1, 1, 0, 3, Q("29.103563 mm")),
])
doc.recompute()
hole3 = body.newObject("PartDesign::Hole", "Hole002")
hole3.Profile = sketch10
hole3.ThreadType = "None"
hole3.Diameter = 2.4
hole3.DepthType = "ThroughAll"

# Sketch on XZ plane
sketch11 = body.newObject("Sketcher::SketchObject", "Sketch010")
sketch11.AttachmentSupport = (doc.getObject("XZ_Plane"), [""])
sketch11.MapMode = "FlatFace"
sketch11.AttachmentOffset = App.Placement(Vector(0, 0, 14.212066), App.Rotation())
sketch11.addGeometry(Part.Circle(Vector(-15.8, -2.5, 0), Vector(0, 0, 1), 1.2), False)
sketch11.addConstraint([
    Sketcher.Constraint("Diameter", 0, Q("2.4 mm")),
    Sketcher.Constraint("DistanceY", 0, 3, -1, 1, Q("2.5 mm")),
    Sketcher.Constraint("DistanceX", 0, 3, -1, 1, Q("15.796437 mm")),
])
doc.recompute()
hole4 = body.newObject("PartDesign::Hole", "Hole003")
hole4.Profile = sketch11
hole4.ThreadType = "None"
hole4.Diameter = 2.4
hole4.DepthType = "ThroughAll"

# Sketch on XZ plane
sketch12 = body.newObject("Sketcher::SketchObject", "Sketch011")
sketch12.AttachmentSupport = (doc.getObject("XZ_Plane"), [""])
sketch12.MapMode = "FlatFace"
sketch12.AttachmentOffset = App.Placement(Vector(0, 0, 16.612066), App.Rotation())
sketch12.addGeometry(Part.Circle(Vector(-15.6, 24.5, 0), Vector(0, 0, 1), 1.2), False)
sketch12.addConstraint([
    Sketcher.Constraint("Diameter", 0, Q("2.4 mm")),
    Sketcher.Constraint("DistanceY", -1, 1, 0, 3, Q("24.5 mm")),
    Sketcher.Constraint("DistanceX", 0, 3, -1, 1, Q("15.596437 mm")),
])
doc.recompute()
hole5 = body.newObject("PartDesign::Hole", "Hole004")
hole5.Profile = sketch12
hole5.ThreadType = "None"
hole5.Diameter = 2.4
hole5.DepthType = "ThroughAll"

# Sketch on XZ plane
sketch13 = body.newObject("Sketcher::SketchObject", "Sketch012")
sketch13.AttachmentSupport = (doc.getObject("XZ_Plane"), [""])
sketch13.MapMode = "FlatFace"
sketch13.AttachmentOffset = App.Placement(Vector(0, 0, 16.612066), App.Rotation())
sketch13.addGeometry(Part.Circle(Vector(30.1, 24.5, 0), Vector(0, 0, 1), 1.2), False)
sketch13.addConstraint([
    Sketcher.Constraint("Diameter", 0, Q("2.4 mm")),
    Sketcher.Constraint("DistanceY", -1, 1, 0, 3, Q("24.5 mm")),
    Sketcher.Constraint("DistanceX", -1, 1, 0, 3, Q("30.103563 mm")),
])
doc.recompute()
hole6 = body.newObject("PartDesign::Hole", "Hole005")
hole6.Profile = sketch13
hole6.ThreadType = "None"
hole6.Diameter = 2.4
hole6.DepthType = "ThroughAll"

doc.recompute()
